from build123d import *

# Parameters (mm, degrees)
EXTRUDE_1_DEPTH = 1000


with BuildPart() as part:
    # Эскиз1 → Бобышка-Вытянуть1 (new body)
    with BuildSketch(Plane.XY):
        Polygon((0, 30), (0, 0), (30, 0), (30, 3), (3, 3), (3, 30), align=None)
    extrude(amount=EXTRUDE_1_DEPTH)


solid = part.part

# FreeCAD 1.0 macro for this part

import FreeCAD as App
import Part
import Sketcher
from FreeCAD import Vector

doc = App.newDocument("Part")
params = doc.addObject("Spreadsheet::Sheet", "Params")
for row, (alias, value) in enumerate([
    ("sketch1_width", "30 mm"),
    ("sketch1_width2", "27 mm"),
    ("pad1_length", "1000 mm"),
], start=1):
    params.set(f"A{row}", alias)
    params.set(f"B{row}", "=" + value)
    params.setAlias(f"B{row}", alias)

body = doc.addObject("PartDesign::Body", "Body")

# Sketch on XY plane
sketch1 = doc.addObject("Sketcher::SketchObject", "Sketch")
body.addObject(sketch1)
sketch1.AttachmentSupport = (doc.XY_Plane, [""])
sketch1.MapMode = "FlatFace"
sketch1.addGeometry([
    Part.LineSegment(Vector(0, 30, 0), Vector(0, 0, 0)),  # 0
    Part.LineSegment(Vector(0, 0, 0), Vector(30, 0, 0)),  # 1
    Part.LineSegment(Vector(30, 0, 0), Vector(30, 3, 0)),  # 2
    Part.LineSegment(Vector(30, 3, 0), Vector(3, 3, 0)),  # 3
    Part.LineSegment(Vector(3, 3, 0), Vector(3, 30, 0)),  # 4
    Part.LineSegment(Vector(3, 30, 0), Vector(0, 30, 0)),  # 5
], False)
sketch1.addConstraint([
    Sketcher.Constraint("Coincident", 0, 2, 1, 1),
    Sketcher.Constraint("Coincident", 1, 2, 2, 1),
    Sketcher.Constraint("Coincident", 2, 2, 3, 1),
    Sketcher.Constraint("Coincident", 3, 2, 4, 1),
    Sketcher.Constraint("Coincident", 4, 2, 5, 1),
    Sketcher.Constraint("Coincident", 5, 2, 0, 1),
    Sketcher.Constraint("Vertical", 0),
    Sketcher.Constraint("Horizontal", 1),
    Sketcher.Constraint("Vertical", 2),
    Sketcher.Constraint("Horizontal", 3),
    Sketcher.Constraint("Vertical", 4),
    Sketcher.Constraint("Horizontal", 5),
    Sketcher.Constraint("Coincident", 0, 2, -1, 1),
    Sketcher.Constraint("Equal", 1, 0),
    Sketcher.Constraint("Equal", 5, 2),
    Sketcher.Constraint("DistanceX", 1, 1, 1, 2, 30.0),
    Sketcher.Constraint("DistanceX", 3, 2, 3, 1, 27.0),
])
sketch1.setExpression("Constraints[15]", "Params.sketch1_width")
sketch1.setExpression("Constraints[16]", "Params.sketch1_width2")
pad1 = doc.addObject("PartDesign::Pad", "Pad")
body.addObject(pad1)
pad1.Profile = sketch1
pad1.setExpression("Length", "Params.pad1_length")

doc.recompute()
